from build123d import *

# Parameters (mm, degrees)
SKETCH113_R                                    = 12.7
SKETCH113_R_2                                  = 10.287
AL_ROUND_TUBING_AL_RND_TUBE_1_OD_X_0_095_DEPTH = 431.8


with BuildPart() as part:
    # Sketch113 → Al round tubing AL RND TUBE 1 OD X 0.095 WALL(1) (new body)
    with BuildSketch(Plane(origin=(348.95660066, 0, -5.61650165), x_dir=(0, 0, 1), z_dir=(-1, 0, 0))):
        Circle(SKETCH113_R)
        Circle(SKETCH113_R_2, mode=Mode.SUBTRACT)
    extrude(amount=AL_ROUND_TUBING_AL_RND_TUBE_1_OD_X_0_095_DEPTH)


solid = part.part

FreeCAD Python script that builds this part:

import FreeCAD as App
import Part
import Sketcher
from FreeCAD import Vector
Q = App.Units.Quantity

doc = App.newDocument("Part")
body = doc.addObject("PartDesign::Body", "Body")

sketch1 = body.newObject("Sketcher::SketchObject", "Sketch")
sketch1.AttachmentSupport = (doc.getObject("YZ_Plane"), [""])
sketch1.MapMode = "FlatFace"
sketch1.AttachmentOffset = App.Placement(Vector(0, 0, 348.956601), App.Rotation())
sketch1.addGeometry(Part.Circle(Vector(0, -6, 0), Vector(0, 0, 1), 13), False)
sketch1.addGeometry(Part.Circle(Vector(0, -6, 0), Vector(0, 0, 1), 10), False)
sketch1.addConstraint(Sketcher.Constraint("Coincident", 1, 3, 0, 3))
sketch1.addConstraint(Sketcher.Constraint("PointOnObject", 0, 3, -2))
sketch1.addConstraint(Sketcher.Constraint("Diameter", 0, Q("1 in")))
sketch1.addConstraint(Sketcher.Constraint("Diameter", 1, Q("0.81 in")))
sketch1.addConstraint(Sketcher.Constraint("DistanceY", 0, 3, -1, 1, Q("5.616502 mm")))
pad1 = body.newObject("PartDesign::Pad", "Pad")
pad1.Profile = sketch1
pad1.Length = Q("17 in")
pad1.Reversed = True

doc.recompute()
